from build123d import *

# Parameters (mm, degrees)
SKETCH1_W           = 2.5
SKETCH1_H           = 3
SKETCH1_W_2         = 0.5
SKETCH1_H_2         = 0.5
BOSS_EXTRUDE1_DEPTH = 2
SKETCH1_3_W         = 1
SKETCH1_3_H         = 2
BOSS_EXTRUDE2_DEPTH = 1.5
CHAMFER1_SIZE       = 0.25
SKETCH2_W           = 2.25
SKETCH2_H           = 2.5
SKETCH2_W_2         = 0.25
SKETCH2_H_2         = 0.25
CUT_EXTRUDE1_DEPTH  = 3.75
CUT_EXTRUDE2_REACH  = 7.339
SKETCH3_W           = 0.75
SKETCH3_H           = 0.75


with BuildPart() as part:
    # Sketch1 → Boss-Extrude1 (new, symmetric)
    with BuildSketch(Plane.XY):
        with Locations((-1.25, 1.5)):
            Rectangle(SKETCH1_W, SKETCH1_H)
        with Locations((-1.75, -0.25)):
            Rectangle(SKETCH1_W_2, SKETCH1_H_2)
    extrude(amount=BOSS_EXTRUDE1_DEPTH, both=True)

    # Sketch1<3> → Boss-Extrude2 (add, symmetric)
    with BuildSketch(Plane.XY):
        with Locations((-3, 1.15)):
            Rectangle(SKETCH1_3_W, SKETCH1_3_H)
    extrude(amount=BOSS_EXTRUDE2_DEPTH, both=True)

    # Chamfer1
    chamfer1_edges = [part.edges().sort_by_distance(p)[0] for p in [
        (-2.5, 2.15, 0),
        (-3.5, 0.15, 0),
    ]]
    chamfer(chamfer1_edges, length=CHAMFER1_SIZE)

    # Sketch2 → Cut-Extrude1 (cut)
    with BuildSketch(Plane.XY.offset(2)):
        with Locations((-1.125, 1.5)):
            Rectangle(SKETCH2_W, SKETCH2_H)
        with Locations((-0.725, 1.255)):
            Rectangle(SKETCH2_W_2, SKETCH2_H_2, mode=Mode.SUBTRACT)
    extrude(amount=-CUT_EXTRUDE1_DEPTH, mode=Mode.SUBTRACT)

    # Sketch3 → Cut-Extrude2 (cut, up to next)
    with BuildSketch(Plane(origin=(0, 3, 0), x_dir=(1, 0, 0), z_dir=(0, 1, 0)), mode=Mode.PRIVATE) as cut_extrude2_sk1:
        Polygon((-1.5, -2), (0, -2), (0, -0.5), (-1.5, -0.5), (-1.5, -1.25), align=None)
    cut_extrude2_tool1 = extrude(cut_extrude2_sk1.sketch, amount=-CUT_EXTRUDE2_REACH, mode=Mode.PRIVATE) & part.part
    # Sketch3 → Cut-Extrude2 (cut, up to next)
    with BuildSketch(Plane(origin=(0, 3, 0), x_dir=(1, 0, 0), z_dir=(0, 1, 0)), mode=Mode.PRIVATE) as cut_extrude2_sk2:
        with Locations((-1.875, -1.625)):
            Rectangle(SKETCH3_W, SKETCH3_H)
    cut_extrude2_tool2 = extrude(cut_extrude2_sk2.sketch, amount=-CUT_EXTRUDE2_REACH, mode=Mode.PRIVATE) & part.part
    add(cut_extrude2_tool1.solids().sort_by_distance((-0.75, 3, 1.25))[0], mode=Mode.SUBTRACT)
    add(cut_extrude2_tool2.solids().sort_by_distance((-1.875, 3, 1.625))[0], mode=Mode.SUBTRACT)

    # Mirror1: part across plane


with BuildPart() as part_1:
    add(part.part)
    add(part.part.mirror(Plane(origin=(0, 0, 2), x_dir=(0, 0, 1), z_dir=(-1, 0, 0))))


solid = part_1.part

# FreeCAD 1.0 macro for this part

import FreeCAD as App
import Part
import Sketcher
from FreeCAD import Vector


def edges_at(feature, points):
    """Names of the edges that pass closest to the given points."""
    edges = feature.Shape.Edges
    near = lambda p: min(range(len(edges)), key=lambda i: edges[i].distToShape(Part.Vertex(*p))[0])
    return sorted({f"Edge{near(p) + 1}" for p in points})

doc = App.newDocument("Part")
body = doc.addObject("PartDesign::Body", "Body")

sketch1 = doc.addObject("Sketcher::SketchObject", "Sketch")
body.addObject(sketch1)
sketch1.AttachmentSupport = (doc.XY_Plane, [""])
sketch1.MapMode = "FlatFace"
sketch1.addGeometry([
    Part.LineSegment(Vector(-2.5, 3, 0), Vector(-2.5, 0, 0)),
    Part.LineSegment(Vector(-2.5, 0, 0), Vector(-2, 0, 0)),
    Part.LineSegment(Vector(-2, 0, 0), Vector(-2, -0.5, 0)),
    Part.LineSegment(Vector(-2, -0.5, 0), Vector(-1.5, -0.5, 0)),
    Part.LineSegment(Vector(-1.5, -0.5, 0), Vector(-1.5, 0, 0)),
    Part.LineSegment(Vector(-1.5, 0, 0), Vector(0, 0, 0)),
    Part.LineSegment(Vector(0, 0, 0), Vector(0, 3, 0)),
    Part.LineSegment(Vector(0, 3, 0), Vector(-2.5, 3, 0)),
], False)
sketch1.addConstraint([
    Sketcher.Constraint("Coincident", 0, 2, 1, 1),
    Sketcher.Constraint("Coincident", 1, 2, 2, 1),
    Sketcher.Constraint("Coincident", 2, 2, 3, 1),
    Sketcher.Constraint("Coincident", 3, 2, 4, 1),
    Sketcher.Constraint("Coincident", 4, 2, 5, 1),
    Sketcher.Constraint("Coincident", 5, 2, 6, 1),
    Sketcher.Constraint("Coincident", 6, 2, 7, 1),
    Sketcher.Constraint("Coincident", 7, 2, 0, 1),
    Sketcher.Constraint("Vertical", 0),
    Sketcher.Constraint("Horizontal", 1),
    Sketcher.Constraint("Vertical", 2),
    Sketcher.Constraint("Horizontal", 3),
    Sketcher.Constraint("Vertical", 4),
    Sketcher.Constraint("Horizontal", 5),
    Sketcher.Constraint("Vertical", 6),
    Sketcher.Constraint("Horizontal", 7),
    Sketcher.Constraint("Coincident", 5, 2, -1, 1),
    Sketcher.Constraint("PointOnObject", 0, 2, -1),
    Sketcher.Constraint("Equal", 1, 3),
    Sketcher.Constraint("Equal", 3, 2),
    Sketcher.Constraint("DistanceY", 0, 2, 0, 1, 3.0),
    Sketcher.Constraint("DistanceX", 1, 1, 1, 2, 0.5),
    Sketcher.Constraint("DistanceX", 5, 1, 5, 2, 1.5),
])
pad1 = doc.addObject("PartDesign::Pad", "Pad")
body.addObject(pad1)
pad1.Profile = sketch1
pad1.Length = 4
pad1.Midplane = True

sketch2 = doc.addObject("Sketcher::SketchObject", "Sketch001")
body.addObject(sketch2)
sketch2.AttachmentSupport = (doc.XY_Plane, [""])
sketch2.MapMode = "FlatFace"
sketch2.addGeometry([
    Part.LineSegment(Vector(-3.5, 2.15, 0), Vector(-3.5, 0.15, 0)),
    Part.LineSegment(Vector(-3.5, 0.15, 0), Vector(-2.5, 0.15, 0)),
    Part.LineSegment(Vector(-2.5, 0.15, 0), Vector(-2.5, 2.15, 0)),
    Part.LineSegment(Vector(-2.5, 2.15, 0), Vector(-3.5, 2.15, 0)),
], False)
sketch2.addConstraint([
    Sketcher.Constraint("Coincident", 0, 2, 1, 1),
    Sketcher.Constraint("Coincident", 1, 2, 2, 1),
    Sketcher.Constraint("Coincident", 2, 2, 3, 1),
    Sketcher.Constraint("Coincident", 3, 2, 0, 1),
    Sketcher.Constraint("Vertical", 0),
    Sketcher.Constraint("Horizontal", 1),
    Sketcher.Constraint("Vertical", 2),
    Sketcher.Constraint("Horizontal", 3),
    Sketcher.Constraint("DistanceX", 1, 1, 1, 2, 1.0),
    Sketcher.Constraint("DistanceY", 0, 2, 0, 1, 2.0),
    Sketcher.Constraint("DistanceX", 0, 2, -1, 1, 3.5),
    Sketcher.Constraint("DistanceY", -1, 1, 0, 2, 0.15),
])
pad2 = doc.addObject("PartDesign::Pad", "Pad001")
body.addObject(pad2)
pad2.Profile = sketch2
pad2.Length = 3
pad2.Midplane = True
doc.recompute()

chamfer = doc.addObject("PartDesign::Chamfer", "Chamfer")
body.addObject(chamfer)
chamfer.Base = (pad2, edges_at(pad2, [(-2.5, 2.15, 0), (-3.5, 0.15, 0)]))
chamfer.Size = 0.25

sketch3 = doc.addObject("Sketcher::SketchObject", "Sketch002")
body.addObject(sketch3)
sketch3.AttachmentSupport = (doc.XY_Plane, [""])
sketch3.MapMode = "FlatFace"
sketch3.AttachmentOffset = App.Placement(Vector(0, 0, 2), App.Rotation())
sketch3.addGeometry([
    Part.LineSegment(Vector(-2.25, 2.75, 0), Vector(-2.25, 0.25, 0)),
    Part.LineSegment(Vector(-2.25, 0.25, 0), Vector(0, 0.25, 0)),
    Part.LineSegment(Vector(0, 0.25, 0), Vector(0, 2.75, 0)),
    Part.LineSegment(Vector(0, 2.75, 0), Vector(-2.25, 2.75, 0)),
    Part.LineSegment(Vector(-0.6, 1.13, 0), Vector(-0.85, 1.13, 0)),
    Part.LineSegment(Vector(-0.85, 1.13, 0), Vector(-0.85, 1.38, 0)),
    Part.LineSegment(Vector(-0.85, 1.38, 0), Vector(-0.6, 1.38, 0)),
    Part.LineSegment(Vector(-0.6, 1.38, 0), Vector(-0.6, 1.13, 0)),
], False)
sketch3.addConstraint([
    Sketcher.Constraint("Coincident", 0, 2, 1, 1),
    Sketcher.Constraint("Coincident", 1, 2, 2, 1),
    Sketcher.Constraint("Coincident", 2, 2, 3, 1),
    Sketcher.Constraint("Coincident", 3, 2, 0, 1),
    Sketcher.Constraint("Coincident", 4, 2, 5, 1),
    Sketcher.Constraint("Coincident", 5, 2, 6, 1),
    Sketcher.Constraint("Coincident", 6, 2, 7, 1),
    Sketcher.Constraint("Coincident", 7, 2, 4, 1),
    Sketcher.Constraint("Vertical", 0),
    Sketcher.Constraint("Horizontal", 1),
    Sketcher.Constraint("Vertical", 2),
    Sketcher.Constraint("Horizontal", 3),
    Sketcher.Constraint("Horizontal", 4),
    Sketcher.Constraint("Vertical", 5),
    Sketcher.Constraint("Horizontal", 6),
    Sketcher.Constraint("Vertical", 7),
    Sketcher.Constraint("PointOnObject", 1, 2, -2),
    Sketcher.Constraint("Equal", 6, 5),
    Sketcher.Constraint("DistanceY", 0, 2, 0, 1, 2.5),
    Sketcher.Constraint("DistanceX", 1, 1, 1, 2, 2.25),
    Sketcher.Constraint("DistanceX", 4, 2, 4, 1, 0.25),
    Sketcher.Constraint("DistanceX", 6, 2, -1, 1, 0.6),
    Sketcher.Constraint("DistanceY", -1, 1, 0, 2, 0.25),
    Sketcher.Constraint("DistanceY", -1, 1, 4, 2, 1.13),
])
pocket1 = doc.addObject("PartDesign::Pocket", "Pocket")
body.addObject(pocket1)
pocket1.Profile = sketch3
pocket1.Length = 3.75

sketch4 = doc.addObject("Sketcher::SketchObject", "Sketch003")
body.addObject(sketch4)
sketch4.AttachmentSupport = (doc.XZ_Plane, [""])
sketch4.MapMode = "FlatFace"
sketch4.AttachmentOffset = App.Placement(Vector(0, 0, -3), App.Rotation())
sketch4.addGeometry([
    Part.LineSegment(Vector(-1.5, 2, 0), Vector(0, 2, 0)),
    Part.LineSegment(Vector(0, 2, 0), Vector(0, 0.5, 0)),
    Part.LineSegment(Vector(0, 0.5, 0), Vector(-1.5, 0.5, 0)),
    Part.LineSegment(Vector(-1.5, 0.5, 0), Vector(-1.5, 2, 0)),
], False)
sketch4.addConstraint([
    Sketcher.Constraint("Coincident", 0, 2, 1, 1),
    Sketcher.Constraint("Coincident", 1, 2, 2, 1),
    Sketcher.Constraint("Coincident", 2, 2, 3, 1),
    Sketcher.Constraint("Coincident", 3, 2, 0, 1),
    Sketcher.Constraint("Horizontal", 0),
    Sketcher.Constraint("Vertical", 1),
    Sketcher.Constraint("Horizontal", 2),
    Sketcher.Constraint("Vertical", 3),
    Sketcher.Constraint("PointOnObject", 0, 2, -2),
    Sketcher.Constraint("Equal", 2, 1),
    Sketcher.Constraint("DistanceX", 0, 1, 0, 2, 1.5),
    Sketcher.Constraint("DistanceY", -1, 1, 0, 2, 2.0),
])
pocket2 = doc.addObject("PartDesign::Pocket", "Pocket001")
body.addObject(pocket2)
pocket2.Profile = sketch4
pocket2.Type = "UpToFirst"
pocket2.Reversed = True

sketch5 = doc.addObject("Sketcher::SketchObject", "Sketch004")
body.addObject(sketch5)
sketch5.AttachmentSupport = (doc.XZ_Plane, [""])
sketch5.MapMode = "FlatFace"
sketch5.AttachmentOffset = App.Placement(Vector(0, 0, -3), App.Rotation())
sketch5.addGeometry([
    Part.LineSegment(Vector(-2.25, 1.25, 0), Vector(-2.25, 2, 0)),
    Part.LineSegment(Vector(-2.25, 2, 0), Vector(-1.5, 2, 0)),
    Part.LineSegment(Vector(-1.5, 2, 0), Vector(-1.5, 1.25, 0)),
    Part.LineSegment(Vector(-1.5, 1.25, 0), Vector(-2.25, 1.25, 0)),
], False)
sketch5.addConstraint([
    Sketcher.Constraint("Coincident", 0, 2, 1, 1),
    Sketcher.Constraint("Coincident", 1, 2, 2, 1),
    Sketcher.Constraint("Coincident", 2, 2, 3, 1),
    Sketcher.Constraint("Coincident", 3, 2, 0, 1),
    Sketcher.Constraint("Vertical", 0),
    Sketcher.Constraint("Horizontal", 1),
    Sketcher.Constraint("Vertical", 2),
    Sketcher.Constraint("Horizontal", 3),
    Sketcher.Constraint("Equal", 3, 0),
    Sketcher.Constraint("DistanceY", -1, 1, 0, 2, 2.0),
    Sketcher.Constraint("DistanceX", 1, 1, 1, 2, 0.75),
    Sketcher.Constraint("DistanceX", 1, 2, -1, 1, 1.5),
])
pocket3 = doc.addObject("PartDesign::Pocket", "Pocket002")
body.addObject(pocket3)
pocket3.Profile = sketch5
pocket3.Type = "UpToFirst"
pocket3.Reversed = True
body2 = doc.addObject("PartDesign::Body", "Body001")
doc.recompute()

body2.BaseFeature = body
doc.recompute()

mirroring = doc.addObject("Part::Mirroring", "Mirroring")
mirroring.Source = body
mirroring.Base = Vector(0, 0, 2)
mirroring.Normal = Vector(-1, 0, 0)
body3 = doc.addObject("PartDesign::Body", "Body002")
body3.BaseFeature = mirroring
boolean = doc.addObject("PartDesign::Boolean", "Boolean")
body2.addObject(boolean)
boolean.Type = "Fuse"
boolean.addObjects([body3])
doc.recompute()
mirroring.Visibility = False

doc.recompute()
